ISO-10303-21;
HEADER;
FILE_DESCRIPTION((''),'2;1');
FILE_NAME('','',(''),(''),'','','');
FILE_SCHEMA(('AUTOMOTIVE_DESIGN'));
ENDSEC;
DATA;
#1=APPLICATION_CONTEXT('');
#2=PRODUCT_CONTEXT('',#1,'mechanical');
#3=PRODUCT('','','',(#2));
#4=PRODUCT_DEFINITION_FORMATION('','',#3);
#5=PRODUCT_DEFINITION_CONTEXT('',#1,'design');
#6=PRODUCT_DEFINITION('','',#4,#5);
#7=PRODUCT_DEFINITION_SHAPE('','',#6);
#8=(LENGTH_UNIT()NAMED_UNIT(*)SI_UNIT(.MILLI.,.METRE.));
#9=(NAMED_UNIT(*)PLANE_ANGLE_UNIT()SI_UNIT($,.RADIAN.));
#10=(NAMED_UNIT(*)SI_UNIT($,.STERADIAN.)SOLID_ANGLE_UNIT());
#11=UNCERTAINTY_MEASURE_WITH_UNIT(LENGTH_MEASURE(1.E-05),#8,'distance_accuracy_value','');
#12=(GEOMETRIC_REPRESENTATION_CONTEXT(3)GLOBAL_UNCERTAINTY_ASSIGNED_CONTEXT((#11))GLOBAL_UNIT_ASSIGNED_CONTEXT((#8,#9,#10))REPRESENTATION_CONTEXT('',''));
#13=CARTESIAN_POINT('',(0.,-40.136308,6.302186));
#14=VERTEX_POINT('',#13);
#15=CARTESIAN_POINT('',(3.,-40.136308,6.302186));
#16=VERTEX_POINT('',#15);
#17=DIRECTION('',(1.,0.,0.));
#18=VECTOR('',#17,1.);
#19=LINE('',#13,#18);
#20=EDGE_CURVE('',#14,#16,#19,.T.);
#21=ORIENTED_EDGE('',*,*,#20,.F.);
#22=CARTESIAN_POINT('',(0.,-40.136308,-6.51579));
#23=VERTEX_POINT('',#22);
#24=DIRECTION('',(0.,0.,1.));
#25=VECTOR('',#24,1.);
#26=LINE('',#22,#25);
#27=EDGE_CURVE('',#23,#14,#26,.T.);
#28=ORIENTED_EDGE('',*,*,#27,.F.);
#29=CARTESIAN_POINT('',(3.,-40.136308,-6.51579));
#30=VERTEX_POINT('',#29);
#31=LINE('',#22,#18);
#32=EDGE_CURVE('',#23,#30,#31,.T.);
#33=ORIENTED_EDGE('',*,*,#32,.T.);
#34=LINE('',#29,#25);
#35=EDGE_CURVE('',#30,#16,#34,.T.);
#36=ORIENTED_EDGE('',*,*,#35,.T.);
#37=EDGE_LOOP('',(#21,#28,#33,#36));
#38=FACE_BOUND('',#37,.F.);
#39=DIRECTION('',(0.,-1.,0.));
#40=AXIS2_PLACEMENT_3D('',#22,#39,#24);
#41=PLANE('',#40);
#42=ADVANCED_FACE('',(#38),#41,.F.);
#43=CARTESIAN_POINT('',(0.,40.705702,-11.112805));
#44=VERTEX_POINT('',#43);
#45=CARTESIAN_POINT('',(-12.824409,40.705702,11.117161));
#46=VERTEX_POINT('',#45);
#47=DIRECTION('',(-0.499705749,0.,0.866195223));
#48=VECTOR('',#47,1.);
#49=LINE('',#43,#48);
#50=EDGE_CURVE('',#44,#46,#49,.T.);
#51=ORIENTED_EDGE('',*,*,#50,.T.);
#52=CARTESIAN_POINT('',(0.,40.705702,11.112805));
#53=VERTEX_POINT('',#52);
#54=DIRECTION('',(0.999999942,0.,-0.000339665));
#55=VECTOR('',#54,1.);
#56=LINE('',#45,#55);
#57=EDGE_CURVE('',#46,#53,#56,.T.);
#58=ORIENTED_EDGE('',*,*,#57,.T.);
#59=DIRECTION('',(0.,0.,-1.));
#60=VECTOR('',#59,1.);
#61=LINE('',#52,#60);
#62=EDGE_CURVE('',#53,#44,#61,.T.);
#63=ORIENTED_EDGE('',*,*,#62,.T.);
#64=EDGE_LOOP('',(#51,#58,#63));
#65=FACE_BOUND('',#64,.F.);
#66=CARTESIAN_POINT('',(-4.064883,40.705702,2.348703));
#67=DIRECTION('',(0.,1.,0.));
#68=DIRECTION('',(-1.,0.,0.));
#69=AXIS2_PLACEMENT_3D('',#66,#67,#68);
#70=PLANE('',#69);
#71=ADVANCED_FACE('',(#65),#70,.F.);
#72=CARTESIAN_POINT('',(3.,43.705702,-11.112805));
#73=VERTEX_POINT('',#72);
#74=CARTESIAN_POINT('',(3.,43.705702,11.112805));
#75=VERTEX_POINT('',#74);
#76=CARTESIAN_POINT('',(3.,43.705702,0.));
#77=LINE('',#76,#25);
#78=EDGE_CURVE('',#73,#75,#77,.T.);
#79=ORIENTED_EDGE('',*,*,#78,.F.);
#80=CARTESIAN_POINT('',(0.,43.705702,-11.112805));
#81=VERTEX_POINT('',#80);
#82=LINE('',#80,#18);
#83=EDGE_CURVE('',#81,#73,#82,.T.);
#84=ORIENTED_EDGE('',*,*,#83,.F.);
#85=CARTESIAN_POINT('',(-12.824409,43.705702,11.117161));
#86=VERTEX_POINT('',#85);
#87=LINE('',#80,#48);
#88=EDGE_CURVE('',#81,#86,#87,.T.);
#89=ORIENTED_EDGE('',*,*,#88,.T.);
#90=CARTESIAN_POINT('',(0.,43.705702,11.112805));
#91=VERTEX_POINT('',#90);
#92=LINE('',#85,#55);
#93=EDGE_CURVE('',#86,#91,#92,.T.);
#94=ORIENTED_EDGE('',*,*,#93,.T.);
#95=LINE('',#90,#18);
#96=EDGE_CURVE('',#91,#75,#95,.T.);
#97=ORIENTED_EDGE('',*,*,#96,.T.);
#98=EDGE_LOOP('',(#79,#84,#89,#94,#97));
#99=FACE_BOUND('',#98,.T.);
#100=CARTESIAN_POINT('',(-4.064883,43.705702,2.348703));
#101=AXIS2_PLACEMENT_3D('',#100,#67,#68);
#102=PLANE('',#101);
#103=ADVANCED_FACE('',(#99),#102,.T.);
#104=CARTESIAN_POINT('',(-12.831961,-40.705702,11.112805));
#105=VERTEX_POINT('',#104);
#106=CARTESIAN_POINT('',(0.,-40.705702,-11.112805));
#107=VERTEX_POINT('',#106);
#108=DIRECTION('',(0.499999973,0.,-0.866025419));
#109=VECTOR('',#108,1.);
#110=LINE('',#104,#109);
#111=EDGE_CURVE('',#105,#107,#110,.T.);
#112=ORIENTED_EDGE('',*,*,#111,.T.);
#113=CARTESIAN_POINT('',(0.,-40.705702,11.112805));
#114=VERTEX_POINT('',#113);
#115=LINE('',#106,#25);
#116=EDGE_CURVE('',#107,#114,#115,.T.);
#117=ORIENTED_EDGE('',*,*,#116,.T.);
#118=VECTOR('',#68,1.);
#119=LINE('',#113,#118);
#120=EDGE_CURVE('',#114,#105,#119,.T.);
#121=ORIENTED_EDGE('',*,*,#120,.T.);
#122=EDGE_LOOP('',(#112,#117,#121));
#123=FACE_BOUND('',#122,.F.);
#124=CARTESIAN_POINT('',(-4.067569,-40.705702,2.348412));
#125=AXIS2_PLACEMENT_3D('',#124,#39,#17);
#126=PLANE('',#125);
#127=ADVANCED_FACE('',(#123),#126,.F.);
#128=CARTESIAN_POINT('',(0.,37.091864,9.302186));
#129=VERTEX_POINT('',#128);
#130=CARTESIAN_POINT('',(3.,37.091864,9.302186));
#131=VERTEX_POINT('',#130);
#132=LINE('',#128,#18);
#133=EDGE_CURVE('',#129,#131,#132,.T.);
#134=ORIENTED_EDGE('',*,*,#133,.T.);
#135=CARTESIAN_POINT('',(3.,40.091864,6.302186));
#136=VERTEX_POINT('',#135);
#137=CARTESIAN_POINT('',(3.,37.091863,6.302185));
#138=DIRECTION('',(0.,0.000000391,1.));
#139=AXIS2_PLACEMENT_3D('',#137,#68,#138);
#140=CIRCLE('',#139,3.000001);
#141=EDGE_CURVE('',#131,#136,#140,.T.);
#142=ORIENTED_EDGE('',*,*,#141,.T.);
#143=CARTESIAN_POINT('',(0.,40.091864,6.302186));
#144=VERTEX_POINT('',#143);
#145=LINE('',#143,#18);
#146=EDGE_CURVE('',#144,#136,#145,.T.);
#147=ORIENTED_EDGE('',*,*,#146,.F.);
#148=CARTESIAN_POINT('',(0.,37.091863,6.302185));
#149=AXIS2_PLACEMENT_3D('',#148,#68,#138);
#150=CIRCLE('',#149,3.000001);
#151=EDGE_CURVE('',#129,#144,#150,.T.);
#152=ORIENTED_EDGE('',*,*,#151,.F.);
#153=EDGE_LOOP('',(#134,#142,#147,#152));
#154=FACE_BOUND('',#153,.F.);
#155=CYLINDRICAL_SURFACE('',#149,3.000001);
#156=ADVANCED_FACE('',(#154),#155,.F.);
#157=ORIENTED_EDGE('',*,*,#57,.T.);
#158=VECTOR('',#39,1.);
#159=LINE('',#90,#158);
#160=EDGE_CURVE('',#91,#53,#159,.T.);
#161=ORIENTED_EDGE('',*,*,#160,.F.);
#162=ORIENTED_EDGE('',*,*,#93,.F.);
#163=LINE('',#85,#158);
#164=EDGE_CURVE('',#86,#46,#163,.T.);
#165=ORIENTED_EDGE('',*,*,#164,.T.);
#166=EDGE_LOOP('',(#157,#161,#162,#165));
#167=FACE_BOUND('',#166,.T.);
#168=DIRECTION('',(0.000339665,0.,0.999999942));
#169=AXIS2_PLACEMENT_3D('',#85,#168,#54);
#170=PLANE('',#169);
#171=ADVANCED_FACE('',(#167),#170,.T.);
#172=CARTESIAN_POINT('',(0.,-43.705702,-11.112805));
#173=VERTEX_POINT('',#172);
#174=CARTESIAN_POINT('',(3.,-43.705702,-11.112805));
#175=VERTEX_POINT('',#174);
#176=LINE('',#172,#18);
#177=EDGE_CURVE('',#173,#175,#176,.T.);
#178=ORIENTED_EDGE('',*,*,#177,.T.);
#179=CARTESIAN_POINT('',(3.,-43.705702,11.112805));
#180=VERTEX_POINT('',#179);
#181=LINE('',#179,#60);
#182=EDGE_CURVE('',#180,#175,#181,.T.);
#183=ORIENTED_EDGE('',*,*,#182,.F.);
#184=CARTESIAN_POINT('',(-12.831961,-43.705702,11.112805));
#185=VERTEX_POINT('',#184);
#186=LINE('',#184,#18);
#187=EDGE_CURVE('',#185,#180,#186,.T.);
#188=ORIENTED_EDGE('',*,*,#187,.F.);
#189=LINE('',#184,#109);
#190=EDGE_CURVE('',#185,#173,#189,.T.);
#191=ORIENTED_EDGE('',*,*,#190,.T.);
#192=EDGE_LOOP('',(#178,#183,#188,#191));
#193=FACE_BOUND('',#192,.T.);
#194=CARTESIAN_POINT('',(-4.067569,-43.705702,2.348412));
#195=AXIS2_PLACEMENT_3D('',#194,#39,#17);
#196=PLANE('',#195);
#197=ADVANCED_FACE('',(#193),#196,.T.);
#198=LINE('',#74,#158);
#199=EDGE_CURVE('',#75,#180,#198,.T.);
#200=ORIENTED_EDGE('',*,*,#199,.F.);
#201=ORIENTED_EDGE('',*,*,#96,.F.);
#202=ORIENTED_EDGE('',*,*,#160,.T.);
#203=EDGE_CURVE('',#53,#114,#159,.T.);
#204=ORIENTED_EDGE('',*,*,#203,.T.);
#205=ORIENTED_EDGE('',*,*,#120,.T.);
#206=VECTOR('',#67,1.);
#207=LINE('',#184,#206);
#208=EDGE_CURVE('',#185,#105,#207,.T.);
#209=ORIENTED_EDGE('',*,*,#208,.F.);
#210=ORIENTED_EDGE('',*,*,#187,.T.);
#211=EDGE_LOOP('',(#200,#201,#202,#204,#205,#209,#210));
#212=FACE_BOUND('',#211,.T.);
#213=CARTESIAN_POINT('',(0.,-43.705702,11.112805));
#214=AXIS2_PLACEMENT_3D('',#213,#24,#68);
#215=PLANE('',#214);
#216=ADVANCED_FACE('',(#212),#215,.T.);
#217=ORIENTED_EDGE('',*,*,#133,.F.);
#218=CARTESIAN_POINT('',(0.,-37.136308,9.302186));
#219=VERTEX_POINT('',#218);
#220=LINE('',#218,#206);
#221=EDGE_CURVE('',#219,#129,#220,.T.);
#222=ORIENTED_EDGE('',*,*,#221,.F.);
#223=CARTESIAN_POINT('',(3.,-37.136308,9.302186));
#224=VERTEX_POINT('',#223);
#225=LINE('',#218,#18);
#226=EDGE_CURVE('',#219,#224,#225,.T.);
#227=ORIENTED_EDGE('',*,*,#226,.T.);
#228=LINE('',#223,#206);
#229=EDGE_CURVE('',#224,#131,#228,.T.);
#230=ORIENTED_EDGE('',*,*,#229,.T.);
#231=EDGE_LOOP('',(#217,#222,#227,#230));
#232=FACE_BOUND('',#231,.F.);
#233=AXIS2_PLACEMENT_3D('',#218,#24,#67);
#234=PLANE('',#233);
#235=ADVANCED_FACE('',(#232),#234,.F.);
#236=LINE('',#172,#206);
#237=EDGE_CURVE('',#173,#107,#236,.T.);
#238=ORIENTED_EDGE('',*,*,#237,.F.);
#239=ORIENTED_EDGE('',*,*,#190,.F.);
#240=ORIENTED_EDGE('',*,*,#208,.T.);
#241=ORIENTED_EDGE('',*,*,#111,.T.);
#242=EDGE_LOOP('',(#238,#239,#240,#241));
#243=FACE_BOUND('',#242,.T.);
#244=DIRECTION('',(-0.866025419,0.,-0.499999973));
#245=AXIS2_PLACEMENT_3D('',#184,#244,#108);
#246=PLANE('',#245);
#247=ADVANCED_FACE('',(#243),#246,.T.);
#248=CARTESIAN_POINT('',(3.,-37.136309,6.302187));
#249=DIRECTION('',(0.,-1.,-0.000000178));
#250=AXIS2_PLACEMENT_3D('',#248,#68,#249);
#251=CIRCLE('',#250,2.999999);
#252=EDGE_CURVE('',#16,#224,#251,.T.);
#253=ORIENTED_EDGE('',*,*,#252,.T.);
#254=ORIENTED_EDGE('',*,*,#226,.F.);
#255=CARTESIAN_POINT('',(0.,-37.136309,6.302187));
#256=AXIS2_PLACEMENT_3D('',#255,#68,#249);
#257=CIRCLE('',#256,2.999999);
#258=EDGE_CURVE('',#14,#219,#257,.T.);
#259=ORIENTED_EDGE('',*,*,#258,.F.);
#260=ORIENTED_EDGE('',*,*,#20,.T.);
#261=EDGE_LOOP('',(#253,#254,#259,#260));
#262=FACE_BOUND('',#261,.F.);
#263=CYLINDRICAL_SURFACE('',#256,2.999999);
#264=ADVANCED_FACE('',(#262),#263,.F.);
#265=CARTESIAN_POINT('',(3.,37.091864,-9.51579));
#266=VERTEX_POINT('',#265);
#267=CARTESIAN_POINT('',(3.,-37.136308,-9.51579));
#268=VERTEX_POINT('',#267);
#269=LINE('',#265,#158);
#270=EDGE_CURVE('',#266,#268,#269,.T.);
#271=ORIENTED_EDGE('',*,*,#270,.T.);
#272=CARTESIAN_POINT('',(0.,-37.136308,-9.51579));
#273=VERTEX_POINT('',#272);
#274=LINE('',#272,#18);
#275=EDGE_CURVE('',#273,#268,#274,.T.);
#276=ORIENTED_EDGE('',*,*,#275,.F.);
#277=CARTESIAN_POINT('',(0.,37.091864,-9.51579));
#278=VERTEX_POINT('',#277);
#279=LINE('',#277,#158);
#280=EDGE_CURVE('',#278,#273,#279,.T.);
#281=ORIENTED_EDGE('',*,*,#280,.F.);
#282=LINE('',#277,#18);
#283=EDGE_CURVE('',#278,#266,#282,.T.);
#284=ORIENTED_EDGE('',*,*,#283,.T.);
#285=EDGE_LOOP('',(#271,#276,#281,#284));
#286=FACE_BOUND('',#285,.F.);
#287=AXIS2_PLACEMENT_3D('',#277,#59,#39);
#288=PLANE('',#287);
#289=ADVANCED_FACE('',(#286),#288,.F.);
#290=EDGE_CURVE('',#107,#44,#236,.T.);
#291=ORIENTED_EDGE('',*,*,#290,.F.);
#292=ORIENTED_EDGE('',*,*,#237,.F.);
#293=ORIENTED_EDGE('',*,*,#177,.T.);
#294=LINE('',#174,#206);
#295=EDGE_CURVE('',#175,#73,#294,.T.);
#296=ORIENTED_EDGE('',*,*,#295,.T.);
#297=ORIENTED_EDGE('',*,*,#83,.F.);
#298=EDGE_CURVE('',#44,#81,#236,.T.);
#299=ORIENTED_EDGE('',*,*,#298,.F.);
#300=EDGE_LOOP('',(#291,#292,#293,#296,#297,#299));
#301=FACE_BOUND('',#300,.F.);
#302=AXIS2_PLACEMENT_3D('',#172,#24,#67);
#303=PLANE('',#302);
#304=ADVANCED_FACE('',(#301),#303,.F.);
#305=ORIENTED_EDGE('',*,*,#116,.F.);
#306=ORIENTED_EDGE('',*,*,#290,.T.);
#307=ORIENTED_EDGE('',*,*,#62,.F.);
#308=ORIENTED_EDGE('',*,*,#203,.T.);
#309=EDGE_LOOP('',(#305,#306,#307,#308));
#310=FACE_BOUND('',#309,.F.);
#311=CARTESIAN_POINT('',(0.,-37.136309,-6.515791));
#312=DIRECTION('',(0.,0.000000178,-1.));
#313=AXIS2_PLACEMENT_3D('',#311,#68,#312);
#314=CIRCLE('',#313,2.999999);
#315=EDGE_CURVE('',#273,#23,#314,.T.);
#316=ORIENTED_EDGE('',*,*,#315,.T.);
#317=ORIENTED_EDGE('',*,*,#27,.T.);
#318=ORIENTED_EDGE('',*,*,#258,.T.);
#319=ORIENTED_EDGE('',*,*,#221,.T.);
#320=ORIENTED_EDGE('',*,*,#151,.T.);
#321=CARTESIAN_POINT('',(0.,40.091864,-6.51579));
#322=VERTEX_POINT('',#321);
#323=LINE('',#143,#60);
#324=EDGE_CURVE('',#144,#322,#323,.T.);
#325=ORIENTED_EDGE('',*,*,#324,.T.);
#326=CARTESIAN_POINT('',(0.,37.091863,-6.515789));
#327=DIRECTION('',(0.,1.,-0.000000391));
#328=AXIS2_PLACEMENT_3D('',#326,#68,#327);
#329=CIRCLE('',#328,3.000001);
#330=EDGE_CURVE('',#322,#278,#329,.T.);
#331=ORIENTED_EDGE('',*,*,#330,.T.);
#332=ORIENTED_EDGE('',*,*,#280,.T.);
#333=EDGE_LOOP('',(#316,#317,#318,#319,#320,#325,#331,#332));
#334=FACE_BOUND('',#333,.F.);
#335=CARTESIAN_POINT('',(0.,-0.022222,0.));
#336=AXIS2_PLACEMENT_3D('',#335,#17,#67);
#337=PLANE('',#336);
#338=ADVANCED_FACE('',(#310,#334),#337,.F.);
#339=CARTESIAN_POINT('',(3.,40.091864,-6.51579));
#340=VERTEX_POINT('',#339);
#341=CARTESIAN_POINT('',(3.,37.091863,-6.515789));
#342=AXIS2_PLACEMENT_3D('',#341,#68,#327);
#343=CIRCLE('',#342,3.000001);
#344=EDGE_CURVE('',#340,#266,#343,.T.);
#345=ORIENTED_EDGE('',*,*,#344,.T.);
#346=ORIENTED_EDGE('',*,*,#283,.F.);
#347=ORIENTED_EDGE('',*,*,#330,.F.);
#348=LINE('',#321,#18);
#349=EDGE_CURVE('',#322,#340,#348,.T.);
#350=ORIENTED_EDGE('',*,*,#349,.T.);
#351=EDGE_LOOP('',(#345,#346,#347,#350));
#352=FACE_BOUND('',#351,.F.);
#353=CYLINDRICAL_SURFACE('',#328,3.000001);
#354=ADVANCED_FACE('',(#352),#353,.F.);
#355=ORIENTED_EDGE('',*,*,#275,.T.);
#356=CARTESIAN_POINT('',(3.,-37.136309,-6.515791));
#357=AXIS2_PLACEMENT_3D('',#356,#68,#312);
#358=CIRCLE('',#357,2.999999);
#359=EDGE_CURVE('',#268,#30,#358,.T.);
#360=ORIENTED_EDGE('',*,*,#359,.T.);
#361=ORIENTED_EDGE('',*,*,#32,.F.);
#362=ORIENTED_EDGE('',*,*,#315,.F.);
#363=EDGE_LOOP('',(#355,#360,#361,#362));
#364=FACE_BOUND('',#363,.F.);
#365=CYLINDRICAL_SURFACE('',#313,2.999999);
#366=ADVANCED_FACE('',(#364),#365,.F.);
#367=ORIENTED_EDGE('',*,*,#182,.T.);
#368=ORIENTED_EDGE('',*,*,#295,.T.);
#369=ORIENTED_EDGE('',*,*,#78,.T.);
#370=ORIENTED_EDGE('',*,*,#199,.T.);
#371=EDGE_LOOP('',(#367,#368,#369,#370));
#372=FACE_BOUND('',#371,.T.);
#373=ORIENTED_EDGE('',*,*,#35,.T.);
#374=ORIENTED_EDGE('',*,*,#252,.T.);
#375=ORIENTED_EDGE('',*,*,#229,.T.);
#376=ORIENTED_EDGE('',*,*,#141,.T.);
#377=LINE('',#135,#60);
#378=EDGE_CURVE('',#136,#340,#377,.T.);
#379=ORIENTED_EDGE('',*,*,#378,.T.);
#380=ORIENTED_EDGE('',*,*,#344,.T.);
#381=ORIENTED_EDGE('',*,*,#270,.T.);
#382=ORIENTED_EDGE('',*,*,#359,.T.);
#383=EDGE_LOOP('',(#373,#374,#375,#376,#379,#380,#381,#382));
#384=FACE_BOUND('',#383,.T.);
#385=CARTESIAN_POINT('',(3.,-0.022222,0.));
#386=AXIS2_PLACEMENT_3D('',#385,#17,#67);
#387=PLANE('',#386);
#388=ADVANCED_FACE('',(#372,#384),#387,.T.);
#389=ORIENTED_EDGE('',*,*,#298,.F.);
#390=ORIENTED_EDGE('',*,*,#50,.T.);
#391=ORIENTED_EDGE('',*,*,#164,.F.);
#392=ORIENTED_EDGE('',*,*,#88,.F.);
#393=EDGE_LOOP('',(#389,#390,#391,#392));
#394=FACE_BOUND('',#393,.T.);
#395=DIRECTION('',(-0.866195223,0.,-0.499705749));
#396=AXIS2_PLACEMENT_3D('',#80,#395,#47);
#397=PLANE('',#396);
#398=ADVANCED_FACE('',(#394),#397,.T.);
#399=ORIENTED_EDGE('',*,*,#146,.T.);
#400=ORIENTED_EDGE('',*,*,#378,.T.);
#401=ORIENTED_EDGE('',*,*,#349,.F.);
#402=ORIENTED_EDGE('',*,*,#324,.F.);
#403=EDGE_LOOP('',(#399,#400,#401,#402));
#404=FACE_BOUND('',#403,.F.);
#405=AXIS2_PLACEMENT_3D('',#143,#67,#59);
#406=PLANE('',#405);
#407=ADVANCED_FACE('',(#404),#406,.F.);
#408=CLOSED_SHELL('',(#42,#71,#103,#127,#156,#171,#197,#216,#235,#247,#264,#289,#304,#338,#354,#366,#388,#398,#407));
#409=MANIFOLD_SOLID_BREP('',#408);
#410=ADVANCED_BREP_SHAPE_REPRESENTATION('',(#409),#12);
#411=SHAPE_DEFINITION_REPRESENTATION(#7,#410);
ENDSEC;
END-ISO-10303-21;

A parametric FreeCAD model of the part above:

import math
import FreeCAD as App
import Part
import Sketcher

V = App.Vector
Q = App.Units.Quantity

doc = App.newDocument("Part")
body = doc.addObject("PartDesign::Body", "Body")

# Sketch on YZ plane
sketch1 = body.newObject("Sketcher::SketchObject", "Sketch")
sketch1.AttachmentSupport = (doc.getObject("YZ_Plane"), [""])
sketch1.MapMode = "FlatFace"
sketch1.addGeometry([
    Part.LineSegment(V(-43.7, 11.1, 0), V(-43.7, -11.1, 0)),  # 0
    Part.LineSegment(V(-43.7, -11.1, 0), V(43.7, -11.1, 0)),  # 1
    Part.LineSegment(V(43.7, -11.1, 0), V(43.7, 11.1, 0)),  # 2
    Part.LineSegment(V(43.7, 11.1, 0), V(-43.7, 11.1, 0)),  # 3
    Part.LineSegment(V(-40.1, -6.5, 0), V(-40.1, 6.3, 0)),  # 4
    Part.ArcOfCircle(Part.Circle(V(-37.1, 6.3, 0), V(0, 0, 1), 3), math.radians(90), math.radians(180)),  # 5
    Part.LineSegment(V(-37.1, 9.3, 0), V(37.1, 9.3, 0)),  # 6
    Part.ArcOfCircle(Part.Circle(V(37.1, 6.3, 0), V(0, 0, 1), 3), math.radians(0), math.radians(90)),  # 7
    Part.LineSegment(V(40.1, 6.3, 0), V(40.1, -6.5, 0)),  # 8
    Part.ArcOfCircle(Part.Circle(V(37.1, -6.5, 0), V(0, 0, 1), 3), math.radians(-90), math.radians(0)),  # 9
    Part.LineSegment(V(37.1, -9.5, 0), V(-37.1, -9.5, 0)),  # 10
    Part.ArcOfCircle(Part.Circle(V(-37.1, -6.5, 0), V(0, 0, 1), 3), math.radians(180), math.radians(270)),  # 11
], False)
sketch1.addConstraint([
    Sketcher.Constraint("Coincident", 0, 2, 1, 1),
    Sketcher.Constraint("Coincident", 1, 2, 2, 1),
    Sketcher.Constraint("Coincident", 2, 2, 3, 1),
    Sketcher.Constraint("Coincident", 3, 2, 0, 1),
    Sketcher.Constraint("Tangent", 4, 2, 5, 2),
    Sketcher.Constraint("Tangent", 5, 1, 6, 1),
    Sketcher.Constraint("Tangent", 6, 2, 7, 2),
    Sketcher.Constraint("Tangent", 7, 1, 8, 1),
    Sketcher.Constraint("Tangent", 8, 2, 9, 2),
    Sketcher.Constraint("Tangent", 9, 1, 10, 1),
    Sketcher.Constraint("Tangent", 10, 2, 11, 2),
    Sketcher.Constraint("Tangent", 11, 1, 4, 1),
    Sketcher.Constraint("Vertical", 0),
    Sketcher.Constraint("Horizontal", 1),
    Sketcher.Constraint("Vertical", 2),
    Sketcher.Constraint("Horizontal", 3),
    Sketcher.Constraint("Vertical", 4),
    Sketcher.Constraint("Horizontal", 6),
    Sketcher.Constraint("Vertical", 8),
    Sketcher.Constraint("Horizontal", 10),
    Sketcher.Constraint("Equal", 5, 7),
    Sketcher.Constraint("Equal", 7, 9),
    Sketcher.Constraint("Equal", 9, 11),
    Sketcher.Constraint("Symmetric", 0, 2, 2, 2, -1, 1),
    Sketcher.Constraint("Radius", 5, Q("2.999999 mm")),
    Sketcher.Constraint("DistanceX", 6, 1, 6, 2, Q("74.228172 mm")),
    Sketcher.Constraint("DistanceY", 0, 2, 0, 1, Q("22.22561 mm")),
    Sketcher.Constraint("DistanceX", 1, 1, 1, 2, Q("87.411404 mm")),
    Sketcher.Constraint("DistanceY", 4, 1, 4, 2, Q("12.817976 mm")),
    Sketcher.Constraint("DistanceX", 5, 3, -1, 1, Q("37.136309 mm")),
    Sketcher.Constraint("DistanceY", 9, 3, -1, 1, Q("6.515789 mm")),
])
pad1 = body.newObject("PartDesign::Pad", "Pad")
pad1.Profile = sketch1
pad1.Length = 3

# Sketch on XZ plane
sketch2 = body.newObject("Sketcher::SketchObject", "Sketch001")
sketch2.AttachmentSupport = (doc.getObject("XZ_Plane"), [""])
sketch2.MapMode = "FlatFace"
sketch2.AttachmentOffset = App.Placement(V(0, 0, 43.705702), App.Rotation())
sketch2.addGeometry([
    Part.LineSegment(V(0, -11, 0), V(0, 11, 0)),
    Part.LineSegment(V(0, 11, 0), V(-13, 11, 0)),
    Part.LineSegment(V(-13, 11, 0), V(0, -11, 0)),
], False)
sketch2.addConstraint([
    Sketcher.Constraint("Coincident", 0, 2, 1, 1),
    Sketcher.Constraint("Coincident", 1, 2, 2, 1),
    Sketcher.Constraint("Coincident", 2, 2, 0, 1),
    Sketcher.Constraint("Vertical", 0),
    Sketcher.Constraint("Horizontal", 1),
    Sketcher.Constraint("Symmetric", 0, 2, 2, 2, -1, 1),
    Sketcher.Constraint("Angle", 2, Q("-60.000002 deg")),
    Sketcher.Constraint("DistanceX", 1, 2, 1, 1, Q("12.831961 mm")),
])
pad2 = body.newObject("PartDesign::Pad", "Pad001")
pad2.Profile = sketch2
pad2.Length = 3
pad2.Reversed = True

# Sketch on XZ plane
sketch3 = body.newObject("Sketcher::SketchObject", "Sketch002")
sketch3.AttachmentSupport = (doc.getObject("XZ_Plane"), [""])
sketch3.MapMode = "FlatFace"
sketch3.AttachmentOffset = App.Placement(V(0, 0, -43.705702), App.Rotation())
sketch3.addGeometry([
    Part.LineSegment(V(-13, 11, 0), V(0, 11, 0)),
    Part.LineSegment(V(0, 11, 0), V(0, -11, 0)),
    Part.LineSegment(V(0, -11, 0), V(-13, 11, 0)),
], False)
sketch3.addConstraint([
    Sketcher.Constraint("Coincident", 0, 2, 1, 1),
    Sketcher.Constraint("Coincident", 1, 2, 2, 1),
    Sketcher.Constraint("Coincident", 2, 2, 0, 1),
    Sketcher.Constraint("Vertical", 1),
    Sketcher.Constraint("Symmetric", 0, 2, 1, 2, -1, 1),
    Sketcher.Constraint("DistanceY", 1, 2, 1, 1, Q("22.22561 mm")),
    Sketcher.Constraint("Distance", 0, Q("12.82441 mm")),
    Sketcher.Constraint("Distance", 2, Q("25.663921 mm")),
])
pad3 = body.newObject("PartDesign::Pad", "Pad002")
pad3.Profile = sketch3
pad3.Length = 3

doc.recompute()
